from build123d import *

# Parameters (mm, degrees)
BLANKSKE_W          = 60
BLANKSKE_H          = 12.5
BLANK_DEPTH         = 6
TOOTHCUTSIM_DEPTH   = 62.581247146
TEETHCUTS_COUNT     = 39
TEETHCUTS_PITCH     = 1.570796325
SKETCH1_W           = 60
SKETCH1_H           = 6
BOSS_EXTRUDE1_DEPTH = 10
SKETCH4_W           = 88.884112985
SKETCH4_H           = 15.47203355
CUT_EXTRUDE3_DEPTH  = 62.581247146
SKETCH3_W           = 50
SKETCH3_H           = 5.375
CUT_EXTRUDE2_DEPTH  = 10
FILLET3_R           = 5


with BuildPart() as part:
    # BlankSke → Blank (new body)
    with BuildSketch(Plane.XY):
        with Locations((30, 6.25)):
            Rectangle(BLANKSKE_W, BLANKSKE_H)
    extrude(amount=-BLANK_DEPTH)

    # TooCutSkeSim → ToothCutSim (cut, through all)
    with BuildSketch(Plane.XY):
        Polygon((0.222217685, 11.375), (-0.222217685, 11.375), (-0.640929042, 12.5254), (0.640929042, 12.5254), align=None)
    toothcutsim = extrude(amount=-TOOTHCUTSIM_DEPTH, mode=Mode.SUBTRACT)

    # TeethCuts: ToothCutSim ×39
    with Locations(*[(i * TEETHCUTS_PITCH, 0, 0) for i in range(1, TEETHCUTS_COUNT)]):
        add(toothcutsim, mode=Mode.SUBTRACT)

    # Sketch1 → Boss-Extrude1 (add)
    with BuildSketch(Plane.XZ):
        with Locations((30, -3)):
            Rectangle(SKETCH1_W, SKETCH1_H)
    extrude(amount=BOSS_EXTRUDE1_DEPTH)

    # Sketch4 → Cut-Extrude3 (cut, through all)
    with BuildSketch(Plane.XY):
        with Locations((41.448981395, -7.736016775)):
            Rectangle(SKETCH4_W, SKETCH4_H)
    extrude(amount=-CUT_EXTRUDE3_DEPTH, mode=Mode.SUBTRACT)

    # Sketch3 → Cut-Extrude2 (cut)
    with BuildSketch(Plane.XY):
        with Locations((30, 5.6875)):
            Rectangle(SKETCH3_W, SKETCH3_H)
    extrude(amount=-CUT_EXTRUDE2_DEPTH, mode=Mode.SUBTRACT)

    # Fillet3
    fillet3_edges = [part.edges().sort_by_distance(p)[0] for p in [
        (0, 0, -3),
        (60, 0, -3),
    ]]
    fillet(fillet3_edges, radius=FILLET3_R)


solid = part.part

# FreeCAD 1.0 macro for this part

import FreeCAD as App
import Part
import Sketcher

V = App.Vector
Q = App.Units.Quantity


def edges_at(feature, points):
    """Names of the edges that pass closest to the given points."""
    edges = feature.Shape.Edges
    near = lambda p: min(range(len(edges)), key=lambda i: edges[i].distToShape(Part.Vertex(*p))[0])
    return sorted({f"Edge{near(p) + 1}" for p in points})


def add_polygon(sketch, points):
    """Adds a closed chain of lines whose ends are joined by coincident constraints."""
    first, n = sketch.GeometryCount, len(points)
    for a, b in zip(points, points[1:] + points[:1]):
        sketch.addGeometry(Part.LineSegment(App.Vector(*a, 0), App.Vector(*b, 0)), False)
    for i in range(n):
        sketch.addConstraint(Sketcher.Constraint("Coincident", first + i, 2, first + (i + 1) % n, 1))

doc = App.newDocument("Part")
params = doc.addObject("Spreadsheet::Sheet", "Params")
for row, (alias, value) in enumerate([
    ("sketch1_width", "60 mm"),
    ("sketch1_height", "12.5 mm"),
    ("pad1_length", "6 mm"),
    ("linearpattern_pitch", "1.570796 mm"),
    ("sketch3_width", "60 mm"),
    ("sketch3_height", "6 mm"),
    ("pad2_length", "10 mm"),
    ("sketch5_width", "50 mm"),
    ("pocket3_length", "10 mm"),
    ("fillet_radius", "5 mm"),
], start=1):
    params.set(f"A{row}", alias)
    params.set(f"B{row}", "=" + value)
    params.setAlias(f"B{row}", alias)

body = doc.addObject("PartDesign::Body", "Body")

# Sketch on XY plane
sketch1 = body.newObject("Sketcher::SketchObject", "Sketch")
sketch1.AttachmentSupport = (doc.getObject("XY_Plane"), [""])
sketch1.MapMode = "FlatFace"
add_polygon(sketch1, [(0, 12.5), (0, 0), (60, 0), (60, 12.5)])  # lines 0-3
sketch1.addConstraint([
    Sketcher.Constraint("Vertical", 0),
    Sketcher.Constraint("Horizontal", 1),
    Sketcher.Constraint("Vertical", 2),
    Sketcher.Constraint("Horizontal", 3),
    Sketcher.Constraint("Coincident", 0, 2, -1, 1),
    Sketcher.Constraint("DistanceX", 1, 1, 1, 2, Q("60 mm")),
    Sketcher.Constraint("DistanceY", 0, 2, 0, 1, Q("12.5 mm")),
])
sketch1.setExpression("Constraints[9]", "Params.sketch1_width")
sketch1.setExpression("Constraints[10]", "Params.sketch1_height")
pad1 = body.newObject("PartDesign::Pad", "Pad")
pad1.Profile = sketch1
pad1.setExpression("Length", "Params.pad1_length")
pad1.Reversed = True

# Sketch on XY plane
sketch2 = body.newObject("Sketcher::SketchObject", "Sketch001")
sketch2.AttachmentSupport = (doc.getObject("XY_Plane"), [""])
sketch2.MapMode = "FlatFace"
add_polygon(sketch2, [(-0.222218, 11.375), (0.222218, 11.375), (0.640929, 12.5254), (-0.640929, 12.5254)])  # lines 0-3
sketch2.addConstraint([
    Sketcher.Constraint("Horizontal", 0),
    Sketcher.Constraint("Horizontal", 2),
    Sketcher.Constraint("Equal", 1, 3),
    Sketcher.Constraint("Angle", 1, Q("70 deg")),
    Sketcher.Constraint("DistanceY", -1, 1, 0, 2, Q("11.375 mm")),
    Sketcher.Constraint("DistanceX", 2, 2, 2, 1, Q("1.281858 mm")),
    Sketcher.Constraint("DistanceY", -1, 1, 1, 2, Q("12.5254 mm")),
    Sketcher.Constraint("DistanceX", -1, 1, 1, 2, Q("0.640929 mm")),
])
pocket1 = body.newObject("PartDesign::Pocket", "Pocket")
pocket1.Profile = sketch2
pocket1.Type = "ThroughAll"
doc.recompute()

linearpattern = body.newObject("PartDesign::LinearPattern", "LinearPattern")
linearpattern.Originals = [pocket1]
linearpattern.Direction = (doc.getObject("X_Axis"), [""])
linearpattern.Mode = "offset"
linearpattern.setExpression("Offset", "Params.linearpattern_pitch")
linearpattern.Occurrences = 39
body.Tip = linearpattern

# Sketch on XZ plane
sketch3 = body.newObject("Sketcher::SketchObject", "Sketch002")
sketch3.AttachmentSupport = (doc.getObject("XZ_Plane"), [""])
sketch3.MapMode = "FlatFace"
add_polygon(sketch3, [(0, 0), (0, -6), (60, -6), (60, 0)])  # lines 0-3
sketch3.addConstraint([
    Sketcher.Constraint("Vertical", 0),
    Sketcher.Constraint("Horizontal", 1),
    Sketcher.Constraint("Vertical", 2),
    Sketcher.Constraint("Horizontal", 3),
    Sketcher.Constraint("Coincident", 3, 2, -1, 1),
    Sketcher.Constraint("DistanceX", 1, 1, 1, 2, Q("60 mm")),
    Sketcher.Constraint("DistanceY", 0, 2, 0, 1, Q("6 mm")),
])
sketch3.setExpression("Constraints[9]", "Params.sketch3_width")
sketch3.setExpression("Constraints[10]", "Params.sketch3_height")
pad2 = body.newObject("PartDesign::Pad", "Pad001")
pad2.Profile = sketch3
pad2.setExpression("Length", "Params.pad2_length")

# Sketch on XY plane
sketch4 = body.newObject("Sketcher::SketchObject", "Sketch003")
sketch4.AttachmentSupport = (doc.getObject("XY_Plane"), [""])
sketch4.MapMode = "FlatFace"
add_polygon(sketch4, [(-2.993075, 0), (-2.993075, -15.472034), (85.891038, -15.472034), (85.891038, 0)])  # lines 0-3
sketch4.addConstraint([
    Sketcher.Constraint("Vertical", 0),
    Sketcher.Constraint("Horizontal", 1),
    Sketcher.Constraint("Vertical", 2),
    Sketcher.Constraint("Horizontal", 3),
    Sketcher.Constraint("PointOnObject", 2, 2, -1),
    Sketcher.Constraint("DistanceX", 1, 1, 1, 2, Q("88.884113 mm")),
    Sketcher.Constraint("DistanceY", 0, 2, 0, 1, Q("15.472034 mm")),
    Sketcher.Constraint("DistanceX", 0, 2, -1, 1, Q("2.993075 mm")),
])
pocket2 = body.newObject("PartDesign::Pocket", "Pocket001")
pocket2.Profile = sketch4
pocket2.Type = "ThroughAll"

# Sketch on XY plane
sketch5 = body.newObject("Sketcher::SketchObject", "Sketch004")
sketch5.AttachmentSupport = (doc.getObject("XY_Plane"), [""])
sketch5.MapMode = "FlatFace"
add_polygon(sketch5, [(5, 8.375), (5, 3), (55, 3), (55, 8.375)])  # lines 0-3
sketch5.addConstraint([
    Sketcher.Constraint("Vertical", 0),
    Sketcher.Constraint("Horizontal", 1),
    Sketcher.Constraint("Vertical", 2),
    Sketcher.Constraint("Horizontal", 3),
    Sketcher.Constraint("DistanceX", 1, 1, 1, 2, Q("50 mm")),
    Sketcher.Constraint("DistanceX", -1, 1, 0, 2, Q("5 mm")),
    Sketcher.Constraint("DistanceY", -1, 1, 0, 2, Q("3 mm")),
    Sketcher.Constraint("DistanceY", 0, 2, 0, 1, Q("5.375 mm")),
])
sketch5.setExpression("Constraints[8]", "Params.sketch5_width")
pocket3 = body.newObject("PartDesign::Pocket", "Pocket002")
pocket3.Profile = sketch5
pocket3.setExpression("Length", "Params.pocket3_length")
doc.recompute()

fillet = body.newObject("PartDesign::Fillet", "Fillet")
fillet.Base = (pocket3, edges_at(pocket3, [(0, 0, -3), (60, 0, -3)]))
fillet.setExpression("Radius", "Params.fillet_radius")

doc.recompute()
